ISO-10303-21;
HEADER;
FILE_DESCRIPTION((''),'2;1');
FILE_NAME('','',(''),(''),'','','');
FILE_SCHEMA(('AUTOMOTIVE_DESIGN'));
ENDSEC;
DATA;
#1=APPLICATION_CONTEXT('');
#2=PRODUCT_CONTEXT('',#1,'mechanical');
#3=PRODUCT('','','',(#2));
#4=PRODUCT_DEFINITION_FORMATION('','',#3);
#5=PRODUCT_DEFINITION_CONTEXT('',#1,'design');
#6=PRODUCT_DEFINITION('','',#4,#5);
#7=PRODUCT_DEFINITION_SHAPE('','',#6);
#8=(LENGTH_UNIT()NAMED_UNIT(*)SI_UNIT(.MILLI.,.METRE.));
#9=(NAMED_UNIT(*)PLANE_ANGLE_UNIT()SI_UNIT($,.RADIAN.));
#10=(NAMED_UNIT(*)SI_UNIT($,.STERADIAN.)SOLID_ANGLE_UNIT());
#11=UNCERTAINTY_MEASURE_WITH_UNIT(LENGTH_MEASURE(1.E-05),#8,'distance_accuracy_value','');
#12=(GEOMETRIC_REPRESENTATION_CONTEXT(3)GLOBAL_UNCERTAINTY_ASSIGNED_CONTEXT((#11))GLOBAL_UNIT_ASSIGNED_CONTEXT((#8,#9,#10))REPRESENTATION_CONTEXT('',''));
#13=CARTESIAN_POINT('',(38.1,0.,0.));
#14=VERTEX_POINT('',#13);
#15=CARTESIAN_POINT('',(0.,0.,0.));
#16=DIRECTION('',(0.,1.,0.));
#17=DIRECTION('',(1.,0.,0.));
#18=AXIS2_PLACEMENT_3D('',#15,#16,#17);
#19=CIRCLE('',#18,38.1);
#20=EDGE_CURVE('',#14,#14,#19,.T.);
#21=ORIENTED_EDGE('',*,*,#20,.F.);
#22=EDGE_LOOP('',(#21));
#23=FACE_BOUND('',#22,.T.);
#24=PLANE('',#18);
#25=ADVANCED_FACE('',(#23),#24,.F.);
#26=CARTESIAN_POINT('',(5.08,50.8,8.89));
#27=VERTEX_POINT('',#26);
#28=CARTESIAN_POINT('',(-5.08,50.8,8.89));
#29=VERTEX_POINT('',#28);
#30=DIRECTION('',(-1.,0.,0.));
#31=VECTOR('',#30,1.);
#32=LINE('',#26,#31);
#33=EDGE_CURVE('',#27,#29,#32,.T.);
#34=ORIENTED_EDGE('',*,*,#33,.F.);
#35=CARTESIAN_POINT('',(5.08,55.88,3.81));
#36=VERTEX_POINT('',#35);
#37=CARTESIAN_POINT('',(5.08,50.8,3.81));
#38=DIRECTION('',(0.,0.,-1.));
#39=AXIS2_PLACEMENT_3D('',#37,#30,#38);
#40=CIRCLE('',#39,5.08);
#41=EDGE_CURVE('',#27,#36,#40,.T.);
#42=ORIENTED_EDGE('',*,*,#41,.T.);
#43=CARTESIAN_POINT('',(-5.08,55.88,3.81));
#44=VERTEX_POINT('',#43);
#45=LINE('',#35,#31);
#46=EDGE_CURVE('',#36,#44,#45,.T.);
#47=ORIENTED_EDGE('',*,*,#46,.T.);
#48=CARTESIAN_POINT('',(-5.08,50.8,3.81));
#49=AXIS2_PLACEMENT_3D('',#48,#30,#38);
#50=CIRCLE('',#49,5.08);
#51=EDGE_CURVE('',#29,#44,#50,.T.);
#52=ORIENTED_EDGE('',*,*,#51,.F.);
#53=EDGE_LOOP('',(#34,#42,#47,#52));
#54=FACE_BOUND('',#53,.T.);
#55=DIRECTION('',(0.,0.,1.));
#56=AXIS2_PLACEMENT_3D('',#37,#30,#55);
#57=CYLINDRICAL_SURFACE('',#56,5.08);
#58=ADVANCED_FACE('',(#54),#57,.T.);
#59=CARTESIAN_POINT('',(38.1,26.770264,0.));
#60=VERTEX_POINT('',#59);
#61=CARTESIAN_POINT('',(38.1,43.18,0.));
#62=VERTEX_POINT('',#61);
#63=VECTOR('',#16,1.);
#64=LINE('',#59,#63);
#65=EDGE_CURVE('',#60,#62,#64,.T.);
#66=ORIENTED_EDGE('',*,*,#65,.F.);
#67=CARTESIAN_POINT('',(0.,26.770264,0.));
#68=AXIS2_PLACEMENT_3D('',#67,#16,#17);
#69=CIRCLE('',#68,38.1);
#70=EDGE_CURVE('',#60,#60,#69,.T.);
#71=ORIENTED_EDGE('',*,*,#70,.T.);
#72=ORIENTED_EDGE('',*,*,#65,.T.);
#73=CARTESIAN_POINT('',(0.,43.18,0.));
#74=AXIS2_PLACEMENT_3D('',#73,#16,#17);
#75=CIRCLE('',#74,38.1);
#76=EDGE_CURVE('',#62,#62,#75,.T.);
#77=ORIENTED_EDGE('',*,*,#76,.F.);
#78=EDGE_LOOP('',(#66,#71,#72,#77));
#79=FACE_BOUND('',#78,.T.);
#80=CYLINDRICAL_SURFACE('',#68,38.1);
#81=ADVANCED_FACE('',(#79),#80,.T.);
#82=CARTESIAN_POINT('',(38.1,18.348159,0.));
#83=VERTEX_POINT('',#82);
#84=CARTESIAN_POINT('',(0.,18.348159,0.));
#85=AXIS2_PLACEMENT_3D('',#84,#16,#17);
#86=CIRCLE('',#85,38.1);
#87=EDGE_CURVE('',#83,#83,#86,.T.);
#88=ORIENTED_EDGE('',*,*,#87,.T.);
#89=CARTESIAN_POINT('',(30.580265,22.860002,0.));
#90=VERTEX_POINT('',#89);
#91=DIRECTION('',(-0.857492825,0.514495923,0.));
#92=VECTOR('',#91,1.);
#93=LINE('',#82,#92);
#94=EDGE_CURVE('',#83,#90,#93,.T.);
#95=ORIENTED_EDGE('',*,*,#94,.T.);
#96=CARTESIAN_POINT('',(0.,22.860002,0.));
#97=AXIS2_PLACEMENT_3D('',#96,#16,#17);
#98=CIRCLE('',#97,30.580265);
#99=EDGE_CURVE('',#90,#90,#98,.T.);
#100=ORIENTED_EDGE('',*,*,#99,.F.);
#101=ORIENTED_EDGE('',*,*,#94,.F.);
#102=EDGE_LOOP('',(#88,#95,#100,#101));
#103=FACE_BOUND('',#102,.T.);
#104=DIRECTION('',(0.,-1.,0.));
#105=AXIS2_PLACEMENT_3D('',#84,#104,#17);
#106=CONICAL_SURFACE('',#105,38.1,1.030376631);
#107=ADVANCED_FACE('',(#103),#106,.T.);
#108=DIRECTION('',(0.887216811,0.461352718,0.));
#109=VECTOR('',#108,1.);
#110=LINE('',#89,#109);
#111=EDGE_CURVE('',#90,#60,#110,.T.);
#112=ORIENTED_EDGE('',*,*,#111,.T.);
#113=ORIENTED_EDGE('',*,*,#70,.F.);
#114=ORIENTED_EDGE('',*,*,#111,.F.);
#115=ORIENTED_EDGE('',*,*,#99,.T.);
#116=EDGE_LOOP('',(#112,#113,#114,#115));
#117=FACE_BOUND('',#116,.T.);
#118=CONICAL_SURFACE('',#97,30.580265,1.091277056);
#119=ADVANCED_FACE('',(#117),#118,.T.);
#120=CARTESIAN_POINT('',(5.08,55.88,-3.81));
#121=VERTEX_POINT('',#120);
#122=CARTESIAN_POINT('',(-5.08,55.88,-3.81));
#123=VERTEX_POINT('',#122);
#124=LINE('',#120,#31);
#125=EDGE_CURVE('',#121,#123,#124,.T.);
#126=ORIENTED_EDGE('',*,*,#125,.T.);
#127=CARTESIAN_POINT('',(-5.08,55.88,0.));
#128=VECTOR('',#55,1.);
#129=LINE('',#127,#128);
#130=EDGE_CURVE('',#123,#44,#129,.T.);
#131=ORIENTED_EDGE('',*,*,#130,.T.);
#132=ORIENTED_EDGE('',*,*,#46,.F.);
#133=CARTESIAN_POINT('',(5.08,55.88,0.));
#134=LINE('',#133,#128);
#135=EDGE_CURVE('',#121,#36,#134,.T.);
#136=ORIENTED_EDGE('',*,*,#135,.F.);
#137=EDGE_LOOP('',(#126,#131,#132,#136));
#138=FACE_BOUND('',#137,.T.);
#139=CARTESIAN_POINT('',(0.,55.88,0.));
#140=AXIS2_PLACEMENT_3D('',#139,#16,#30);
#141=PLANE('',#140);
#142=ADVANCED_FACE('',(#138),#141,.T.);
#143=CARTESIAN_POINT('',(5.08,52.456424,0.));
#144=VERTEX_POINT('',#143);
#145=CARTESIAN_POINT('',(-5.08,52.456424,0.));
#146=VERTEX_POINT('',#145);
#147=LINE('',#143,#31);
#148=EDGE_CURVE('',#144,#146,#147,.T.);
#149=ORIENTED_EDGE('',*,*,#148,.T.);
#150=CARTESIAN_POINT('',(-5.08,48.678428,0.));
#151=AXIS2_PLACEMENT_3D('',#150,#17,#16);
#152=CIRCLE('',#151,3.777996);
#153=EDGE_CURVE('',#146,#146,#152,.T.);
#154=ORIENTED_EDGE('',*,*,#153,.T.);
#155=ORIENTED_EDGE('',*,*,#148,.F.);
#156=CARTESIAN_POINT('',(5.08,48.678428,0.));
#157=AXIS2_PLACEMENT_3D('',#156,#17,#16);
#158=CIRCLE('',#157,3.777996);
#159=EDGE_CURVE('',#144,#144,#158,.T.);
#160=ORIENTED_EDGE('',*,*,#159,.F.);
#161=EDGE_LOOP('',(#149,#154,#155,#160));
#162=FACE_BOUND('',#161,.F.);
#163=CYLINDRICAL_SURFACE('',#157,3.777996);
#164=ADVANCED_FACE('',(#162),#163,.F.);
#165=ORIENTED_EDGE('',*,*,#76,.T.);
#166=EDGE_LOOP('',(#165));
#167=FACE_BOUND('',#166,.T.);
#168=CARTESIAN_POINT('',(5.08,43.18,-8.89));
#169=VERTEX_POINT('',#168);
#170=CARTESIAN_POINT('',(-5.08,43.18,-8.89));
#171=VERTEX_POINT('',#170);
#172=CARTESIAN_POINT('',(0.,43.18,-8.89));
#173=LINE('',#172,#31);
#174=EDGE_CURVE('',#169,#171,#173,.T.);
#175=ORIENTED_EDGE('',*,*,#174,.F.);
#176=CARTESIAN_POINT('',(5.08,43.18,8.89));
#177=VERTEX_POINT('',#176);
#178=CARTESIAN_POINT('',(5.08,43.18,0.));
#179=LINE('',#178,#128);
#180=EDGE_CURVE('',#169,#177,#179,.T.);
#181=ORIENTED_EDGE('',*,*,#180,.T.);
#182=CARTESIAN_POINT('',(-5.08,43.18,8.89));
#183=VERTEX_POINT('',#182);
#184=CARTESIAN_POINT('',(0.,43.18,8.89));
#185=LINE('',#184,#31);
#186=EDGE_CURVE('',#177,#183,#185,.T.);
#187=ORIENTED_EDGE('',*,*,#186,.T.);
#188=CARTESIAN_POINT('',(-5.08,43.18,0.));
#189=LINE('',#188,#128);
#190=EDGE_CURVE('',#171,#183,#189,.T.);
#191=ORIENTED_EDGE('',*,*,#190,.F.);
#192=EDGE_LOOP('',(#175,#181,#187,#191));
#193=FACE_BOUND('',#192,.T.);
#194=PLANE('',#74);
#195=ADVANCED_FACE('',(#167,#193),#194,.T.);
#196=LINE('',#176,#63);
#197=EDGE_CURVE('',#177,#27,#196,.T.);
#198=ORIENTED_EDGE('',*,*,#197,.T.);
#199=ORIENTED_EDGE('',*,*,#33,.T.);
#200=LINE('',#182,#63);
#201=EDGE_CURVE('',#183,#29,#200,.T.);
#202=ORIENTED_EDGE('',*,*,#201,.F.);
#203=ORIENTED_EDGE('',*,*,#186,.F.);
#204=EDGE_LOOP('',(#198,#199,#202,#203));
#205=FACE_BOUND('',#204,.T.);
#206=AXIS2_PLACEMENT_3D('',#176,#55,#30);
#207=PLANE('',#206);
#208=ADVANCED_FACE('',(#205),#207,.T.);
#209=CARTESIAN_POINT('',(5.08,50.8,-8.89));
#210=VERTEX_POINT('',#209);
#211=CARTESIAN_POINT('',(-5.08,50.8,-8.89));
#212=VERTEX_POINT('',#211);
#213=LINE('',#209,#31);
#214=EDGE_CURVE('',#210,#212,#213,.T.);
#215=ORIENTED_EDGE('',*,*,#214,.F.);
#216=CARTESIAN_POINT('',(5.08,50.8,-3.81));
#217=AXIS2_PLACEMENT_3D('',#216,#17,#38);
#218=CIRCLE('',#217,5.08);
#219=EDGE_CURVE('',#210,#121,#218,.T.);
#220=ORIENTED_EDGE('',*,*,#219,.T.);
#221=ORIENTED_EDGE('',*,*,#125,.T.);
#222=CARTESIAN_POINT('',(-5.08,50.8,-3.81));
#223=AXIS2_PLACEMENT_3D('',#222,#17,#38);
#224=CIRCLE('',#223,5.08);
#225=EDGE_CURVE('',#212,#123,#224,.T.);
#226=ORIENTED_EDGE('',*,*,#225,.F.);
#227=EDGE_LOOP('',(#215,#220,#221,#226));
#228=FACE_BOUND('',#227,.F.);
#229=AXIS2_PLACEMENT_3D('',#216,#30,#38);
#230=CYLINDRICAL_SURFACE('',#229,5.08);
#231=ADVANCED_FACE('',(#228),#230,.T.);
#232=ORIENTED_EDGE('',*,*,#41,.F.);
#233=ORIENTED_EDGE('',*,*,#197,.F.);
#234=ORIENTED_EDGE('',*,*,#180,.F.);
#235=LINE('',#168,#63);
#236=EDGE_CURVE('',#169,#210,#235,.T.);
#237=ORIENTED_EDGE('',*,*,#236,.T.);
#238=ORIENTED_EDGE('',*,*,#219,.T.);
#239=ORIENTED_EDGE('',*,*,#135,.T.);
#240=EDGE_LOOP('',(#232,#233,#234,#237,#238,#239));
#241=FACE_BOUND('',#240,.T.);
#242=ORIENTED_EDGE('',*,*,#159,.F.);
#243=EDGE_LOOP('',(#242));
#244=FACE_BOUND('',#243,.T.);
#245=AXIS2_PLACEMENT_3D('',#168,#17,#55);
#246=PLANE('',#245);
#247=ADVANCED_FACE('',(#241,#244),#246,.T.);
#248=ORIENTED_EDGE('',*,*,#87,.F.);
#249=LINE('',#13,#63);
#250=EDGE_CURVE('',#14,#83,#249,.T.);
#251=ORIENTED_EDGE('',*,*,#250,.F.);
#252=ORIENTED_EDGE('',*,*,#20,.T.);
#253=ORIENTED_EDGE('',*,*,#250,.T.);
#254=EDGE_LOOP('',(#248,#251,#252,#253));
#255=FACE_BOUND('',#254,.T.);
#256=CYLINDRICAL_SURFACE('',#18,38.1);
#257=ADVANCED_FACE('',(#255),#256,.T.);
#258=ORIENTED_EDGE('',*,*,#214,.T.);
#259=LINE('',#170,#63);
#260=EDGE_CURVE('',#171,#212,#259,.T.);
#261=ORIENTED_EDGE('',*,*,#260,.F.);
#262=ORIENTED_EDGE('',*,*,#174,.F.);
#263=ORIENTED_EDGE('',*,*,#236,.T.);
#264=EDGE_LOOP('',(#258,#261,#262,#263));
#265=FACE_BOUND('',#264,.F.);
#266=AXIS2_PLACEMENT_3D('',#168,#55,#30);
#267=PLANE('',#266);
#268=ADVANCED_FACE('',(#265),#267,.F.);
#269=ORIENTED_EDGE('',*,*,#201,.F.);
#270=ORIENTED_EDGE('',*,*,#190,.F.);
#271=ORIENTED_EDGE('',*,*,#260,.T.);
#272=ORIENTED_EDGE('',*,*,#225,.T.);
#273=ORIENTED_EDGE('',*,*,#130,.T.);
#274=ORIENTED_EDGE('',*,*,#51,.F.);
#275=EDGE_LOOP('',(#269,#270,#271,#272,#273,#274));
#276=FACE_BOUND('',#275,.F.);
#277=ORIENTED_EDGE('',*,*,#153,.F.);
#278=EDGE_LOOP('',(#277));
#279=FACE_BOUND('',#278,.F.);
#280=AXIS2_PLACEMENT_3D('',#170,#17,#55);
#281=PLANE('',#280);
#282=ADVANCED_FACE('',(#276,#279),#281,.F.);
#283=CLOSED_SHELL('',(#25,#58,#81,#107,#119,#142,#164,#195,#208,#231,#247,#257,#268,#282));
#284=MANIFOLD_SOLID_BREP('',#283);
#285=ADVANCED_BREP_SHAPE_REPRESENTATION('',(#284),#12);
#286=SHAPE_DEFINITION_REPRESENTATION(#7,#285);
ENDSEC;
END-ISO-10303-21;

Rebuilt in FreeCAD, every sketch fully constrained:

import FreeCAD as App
import Part
import Sketcher
from FreeCAD import Vector
Q = App.Units.Quantity


def edges_at(feature, points):
    """Names of the edges that pass closest to the given points."""
    edges = feature.Shape.Edges
    near = lambda p: min(range(len(edges)), key=lambda i: edges[i].distToShape(Part.Vertex(*p))[0])
    return sorted({f"Edge{near(p) + 1}" for p in points})

doc = App.newDocument("Part")
params = doc.addObject("Spreadsheet::Sheet", "Params")
for row, (alias, value) in enumerate([
    ("sketch1_width", "1.5 in"),
    ("sketch1_height", "1.7 in"),
    ("revolution_angle", "360 deg"),
    ("sketch2_width", "0.4 in"),
    ("sketch2_height", "0.7 in"),
    ("pad1_length", "0.5 in"),
    ("fillet_radius", "0.2 in"),
    ("pocket1_length", "1 in"),
], start=1):
    params.set(f"A{row}", alias)
    params.set(f"B{row}", "=" + value)
    params.setAlias(f"B{row}", alias)

body = doc.addObject("PartDesign::Body", "Body")

# Sketch on XY plane
sketch1 = body.newObject("Sketcher::SketchObject", "Sketch")
sketch1.AttachmentSupport = (doc.getObject("XY_Plane"), [""])
sketch1.MapMode = "FlatFace"
sketch1.addGeometry(Part.LineSegment(Vector(0, 0, 0), Vector(38.1, 0, 0)), False)
sketch1.addGeometry(Part.LineSegment(Vector(38.1, 0, 0), Vector(38.1, 18.348159, 0)), False)
sketch1.addGeometry(Part.LineSegment(Vector(38.1, 18.348159, 0), Vector(30.580265, 22.860002, 0)), False)
sketch1.addGeometry(Part.LineSegment(Vector(30.580265, 22.860002, 0), Vector(38.1, 26.770264, 0)), False)
sketch1.addGeometry(Part.LineSegment(Vector(38.1, 26.770264, 0), Vector(38.1, 43.18, 0)), False)
sketch1.addGeometry(Part.LineSegment(Vector(38.1, 43.18, 0), Vector(0, 43.18, 0)), False)
sketch1.addGeometry(Part.LineSegment(Vector(0, 43.18, 0), Vector(0, 0, 0)), False)
sketch1.addConstraint(Sketcher.Constraint("Coincident", 0, 2, 1, 1))
sketch1.addConstraint(Sketcher.Constraint("Coincident", 1, 2, 2, 1))
sketch1.addConstraint(Sketcher.Constraint("Coincident", 2, 2, 3, 1))
sketch1.addConstraint(Sketcher.Constraint("Coincident", 3, 2, 4, 1))
sketch1.addConstraint(Sketcher.Constraint("Coincident", 4, 2, 5, 1))
sketch1.addConstraint(Sketcher.Constraint("Coincident", 5, 2, 6, 1))
sketch1.addConstraint(Sketcher.Constraint("Coincident", 6, 2, 0, 1))
sketch1.addConstraint(Sketcher.Constraint("Horizontal", 0))
sketch1.addConstraint(Sketcher.Constraint("Vertical", 1))
sketch1.addConstraint(Sketcher.Constraint("Vertical", 4))
sketch1.addConstraint(Sketcher.Constraint("Horizontal", 5))
sketch1.addConstraint(Sketcher.Constraint("Vertical", 6))
sketch1.addConstraint(Sketcher.Constraint("Coincident", 6, 2, -1, 1))
sketch1.addConstraint(Sketcher.Constraint("Vertical", 1, 2, 3, 2))
sketch1.addConstraint(Sketcher.Constraint("DistanceX", 0, 1, 0, 2, Q("1.5 in")))
sketch1.addConstraint(Sketcher.Constraint("DistanceY", 6, 2, 6, 1, Q("1.7 in")))
sketch1.addConstraint(Sketcher.Constraint("DistanceY", -1, 1, 2, 2, Q("0.9000001 in")))
sketch1.addConstraint(Sketcher.Constraint("DistanceY", 1, 1, 1, 2, 18.348159))
sketch1.addConstraint(Sketcher.Constraint("DistanceY", 4, 1, 4, 2, 16.409736))
sketch1.addConstraint(Sketcher.Constraint("Distance", 2, 8.769444))
sketch1.setExpression("Constraints[14]", "Params.sketch1_width")
sketch1.setExpression("Constraints[15]", "Params.sketch1_height")
revolution = body.newObject("PartDesign::Revolution", "Revolution")
revolution.Profile = sketch1
revolution.ReferenceAxis = (sketch1, ["V_Axis"])
revolution.setExpression("Angle", "Params.revolution_angle")

# Sketch on XZ plane
sketch2 = body.newObject("Sketcher::SketchObject", "Sketch001")
sketch2.AttachmentSupport = (doc.getObject("XZ_Plane"), [""])
sketch2.MapMode = "FlatFace"
sketch2.AttachmentOffset = App.Placement(Vector(0, 0, -1.7 * 25.4), App.Rotation())
sketch2.addGeometry(Part.LineSegment(Vector(5.08, 8.89, 0), Vector(5.08, -8.89, 0)), False)
sketch2.addGeometry(Part.LineSegment(Vector(5.08, -8.89, 0), Vector(-5.08, -8.89, 0)), False)
sketch2.addGeometry(Part.LineSegment(Vector(-5.08, -8.89, 0), Vector(-5.08, 8.89, 0)), False)
sketch2.addGeometry(Part.LineSegment(Vector(-5.08, 8.89, 0), Vector(5.08, 8.89, 0)), False)
sketch2.addConstraint(Sketcher.Constraint("Coincident", 0, 2, 1, 1))
sketch2.addConstraint(Sketcher.Constraint("Coincident", 1, 2, 2, 1))
sketch2.addConstraint(Sketcher.Constraint("Coincident", 2, 2, 3, 1))
sketch2.addConstraint(Sketcher.Constraint("Coincident", 3, 2, 0, 1))
sketch2.addConstraint(Sketcher.Constraint("Vertical", 0))
sketch2.addConstraint(Sketcher.Constraint("Horizontal", 1))
sketch2.addConstraint(Sketcher.Constraint("Vertical", 2))
sketch2.addConstraint(Sketcher.Constraint("Horizontal", 3))
sketch2.addConstraint(Sketcher.Constraint("Symmetric", 0, 2, 2, 2, -1, 1))
sketch2.addConstraint(Sketcher.Constraint("DistanceX", 1, 2, 1, 1, Q("0.4 in")))
sketch2.addConstraint(Sketcher.Constraint("DistanceY", 0, 2, 0, 1, Q("0.7 in")))
sketch2.setExpression("Constraints[9]", "Params.sketch2_width")
sketch2.setExpression("Constraints[10]", "Params.sketch2_height")
pad1 = body.newObject("PartDesign::Pad", "Pad")
pad1.Profile = sketch2
pad1.setExpression("Length", "Params.pad1_length")
pad1.Reversed = True
doc.recompute()

fillet = body.newObject("PartDesign::Fillet", "Fillet")
fillet.Base = (pad1, edges_at(pad1, [(0, 55.88, 8.89), (0, 55.88, -8.89)]))
fillet.setExpression("Radius", "Params.fillet_radius")

# Sketch on YZ plane
sketch3 = body.newObject("Sketcher::SketchObject", "Sketch002")
sketch3.AttachmentSupport = (doc.getObject("YZ_Plane"), [""])
sketch3.MapMode = "FlatFace"
sketch3.AttachmentOffset = App.Placement(Vector(0, 0, 0.2 * 25.4), App.Rotation())
sketch3.addGeometry(Part.Circle(Vector(48.678428, 0, 0), Vector(0, 0, 1), 3.777996), False)
sketch3.addConstraint(Sketcher.Constraint("PointOnObject", 0, 3, -1))
sketch3.addConstraint(Sketcher.Constraint("Diameter", 0, 7.555992))
sketch3.addConstraint(Sketcher.Constraint("DistanceX", -1, 1, 0, 3, 48.678428))
pocket1 = body.newObject("PartDesign::Pocket", "Pocket")
pocket1.Profile = sketch3
pocket1.setExpression("Length", "Params.pocket1_length")

doc.recompute()
